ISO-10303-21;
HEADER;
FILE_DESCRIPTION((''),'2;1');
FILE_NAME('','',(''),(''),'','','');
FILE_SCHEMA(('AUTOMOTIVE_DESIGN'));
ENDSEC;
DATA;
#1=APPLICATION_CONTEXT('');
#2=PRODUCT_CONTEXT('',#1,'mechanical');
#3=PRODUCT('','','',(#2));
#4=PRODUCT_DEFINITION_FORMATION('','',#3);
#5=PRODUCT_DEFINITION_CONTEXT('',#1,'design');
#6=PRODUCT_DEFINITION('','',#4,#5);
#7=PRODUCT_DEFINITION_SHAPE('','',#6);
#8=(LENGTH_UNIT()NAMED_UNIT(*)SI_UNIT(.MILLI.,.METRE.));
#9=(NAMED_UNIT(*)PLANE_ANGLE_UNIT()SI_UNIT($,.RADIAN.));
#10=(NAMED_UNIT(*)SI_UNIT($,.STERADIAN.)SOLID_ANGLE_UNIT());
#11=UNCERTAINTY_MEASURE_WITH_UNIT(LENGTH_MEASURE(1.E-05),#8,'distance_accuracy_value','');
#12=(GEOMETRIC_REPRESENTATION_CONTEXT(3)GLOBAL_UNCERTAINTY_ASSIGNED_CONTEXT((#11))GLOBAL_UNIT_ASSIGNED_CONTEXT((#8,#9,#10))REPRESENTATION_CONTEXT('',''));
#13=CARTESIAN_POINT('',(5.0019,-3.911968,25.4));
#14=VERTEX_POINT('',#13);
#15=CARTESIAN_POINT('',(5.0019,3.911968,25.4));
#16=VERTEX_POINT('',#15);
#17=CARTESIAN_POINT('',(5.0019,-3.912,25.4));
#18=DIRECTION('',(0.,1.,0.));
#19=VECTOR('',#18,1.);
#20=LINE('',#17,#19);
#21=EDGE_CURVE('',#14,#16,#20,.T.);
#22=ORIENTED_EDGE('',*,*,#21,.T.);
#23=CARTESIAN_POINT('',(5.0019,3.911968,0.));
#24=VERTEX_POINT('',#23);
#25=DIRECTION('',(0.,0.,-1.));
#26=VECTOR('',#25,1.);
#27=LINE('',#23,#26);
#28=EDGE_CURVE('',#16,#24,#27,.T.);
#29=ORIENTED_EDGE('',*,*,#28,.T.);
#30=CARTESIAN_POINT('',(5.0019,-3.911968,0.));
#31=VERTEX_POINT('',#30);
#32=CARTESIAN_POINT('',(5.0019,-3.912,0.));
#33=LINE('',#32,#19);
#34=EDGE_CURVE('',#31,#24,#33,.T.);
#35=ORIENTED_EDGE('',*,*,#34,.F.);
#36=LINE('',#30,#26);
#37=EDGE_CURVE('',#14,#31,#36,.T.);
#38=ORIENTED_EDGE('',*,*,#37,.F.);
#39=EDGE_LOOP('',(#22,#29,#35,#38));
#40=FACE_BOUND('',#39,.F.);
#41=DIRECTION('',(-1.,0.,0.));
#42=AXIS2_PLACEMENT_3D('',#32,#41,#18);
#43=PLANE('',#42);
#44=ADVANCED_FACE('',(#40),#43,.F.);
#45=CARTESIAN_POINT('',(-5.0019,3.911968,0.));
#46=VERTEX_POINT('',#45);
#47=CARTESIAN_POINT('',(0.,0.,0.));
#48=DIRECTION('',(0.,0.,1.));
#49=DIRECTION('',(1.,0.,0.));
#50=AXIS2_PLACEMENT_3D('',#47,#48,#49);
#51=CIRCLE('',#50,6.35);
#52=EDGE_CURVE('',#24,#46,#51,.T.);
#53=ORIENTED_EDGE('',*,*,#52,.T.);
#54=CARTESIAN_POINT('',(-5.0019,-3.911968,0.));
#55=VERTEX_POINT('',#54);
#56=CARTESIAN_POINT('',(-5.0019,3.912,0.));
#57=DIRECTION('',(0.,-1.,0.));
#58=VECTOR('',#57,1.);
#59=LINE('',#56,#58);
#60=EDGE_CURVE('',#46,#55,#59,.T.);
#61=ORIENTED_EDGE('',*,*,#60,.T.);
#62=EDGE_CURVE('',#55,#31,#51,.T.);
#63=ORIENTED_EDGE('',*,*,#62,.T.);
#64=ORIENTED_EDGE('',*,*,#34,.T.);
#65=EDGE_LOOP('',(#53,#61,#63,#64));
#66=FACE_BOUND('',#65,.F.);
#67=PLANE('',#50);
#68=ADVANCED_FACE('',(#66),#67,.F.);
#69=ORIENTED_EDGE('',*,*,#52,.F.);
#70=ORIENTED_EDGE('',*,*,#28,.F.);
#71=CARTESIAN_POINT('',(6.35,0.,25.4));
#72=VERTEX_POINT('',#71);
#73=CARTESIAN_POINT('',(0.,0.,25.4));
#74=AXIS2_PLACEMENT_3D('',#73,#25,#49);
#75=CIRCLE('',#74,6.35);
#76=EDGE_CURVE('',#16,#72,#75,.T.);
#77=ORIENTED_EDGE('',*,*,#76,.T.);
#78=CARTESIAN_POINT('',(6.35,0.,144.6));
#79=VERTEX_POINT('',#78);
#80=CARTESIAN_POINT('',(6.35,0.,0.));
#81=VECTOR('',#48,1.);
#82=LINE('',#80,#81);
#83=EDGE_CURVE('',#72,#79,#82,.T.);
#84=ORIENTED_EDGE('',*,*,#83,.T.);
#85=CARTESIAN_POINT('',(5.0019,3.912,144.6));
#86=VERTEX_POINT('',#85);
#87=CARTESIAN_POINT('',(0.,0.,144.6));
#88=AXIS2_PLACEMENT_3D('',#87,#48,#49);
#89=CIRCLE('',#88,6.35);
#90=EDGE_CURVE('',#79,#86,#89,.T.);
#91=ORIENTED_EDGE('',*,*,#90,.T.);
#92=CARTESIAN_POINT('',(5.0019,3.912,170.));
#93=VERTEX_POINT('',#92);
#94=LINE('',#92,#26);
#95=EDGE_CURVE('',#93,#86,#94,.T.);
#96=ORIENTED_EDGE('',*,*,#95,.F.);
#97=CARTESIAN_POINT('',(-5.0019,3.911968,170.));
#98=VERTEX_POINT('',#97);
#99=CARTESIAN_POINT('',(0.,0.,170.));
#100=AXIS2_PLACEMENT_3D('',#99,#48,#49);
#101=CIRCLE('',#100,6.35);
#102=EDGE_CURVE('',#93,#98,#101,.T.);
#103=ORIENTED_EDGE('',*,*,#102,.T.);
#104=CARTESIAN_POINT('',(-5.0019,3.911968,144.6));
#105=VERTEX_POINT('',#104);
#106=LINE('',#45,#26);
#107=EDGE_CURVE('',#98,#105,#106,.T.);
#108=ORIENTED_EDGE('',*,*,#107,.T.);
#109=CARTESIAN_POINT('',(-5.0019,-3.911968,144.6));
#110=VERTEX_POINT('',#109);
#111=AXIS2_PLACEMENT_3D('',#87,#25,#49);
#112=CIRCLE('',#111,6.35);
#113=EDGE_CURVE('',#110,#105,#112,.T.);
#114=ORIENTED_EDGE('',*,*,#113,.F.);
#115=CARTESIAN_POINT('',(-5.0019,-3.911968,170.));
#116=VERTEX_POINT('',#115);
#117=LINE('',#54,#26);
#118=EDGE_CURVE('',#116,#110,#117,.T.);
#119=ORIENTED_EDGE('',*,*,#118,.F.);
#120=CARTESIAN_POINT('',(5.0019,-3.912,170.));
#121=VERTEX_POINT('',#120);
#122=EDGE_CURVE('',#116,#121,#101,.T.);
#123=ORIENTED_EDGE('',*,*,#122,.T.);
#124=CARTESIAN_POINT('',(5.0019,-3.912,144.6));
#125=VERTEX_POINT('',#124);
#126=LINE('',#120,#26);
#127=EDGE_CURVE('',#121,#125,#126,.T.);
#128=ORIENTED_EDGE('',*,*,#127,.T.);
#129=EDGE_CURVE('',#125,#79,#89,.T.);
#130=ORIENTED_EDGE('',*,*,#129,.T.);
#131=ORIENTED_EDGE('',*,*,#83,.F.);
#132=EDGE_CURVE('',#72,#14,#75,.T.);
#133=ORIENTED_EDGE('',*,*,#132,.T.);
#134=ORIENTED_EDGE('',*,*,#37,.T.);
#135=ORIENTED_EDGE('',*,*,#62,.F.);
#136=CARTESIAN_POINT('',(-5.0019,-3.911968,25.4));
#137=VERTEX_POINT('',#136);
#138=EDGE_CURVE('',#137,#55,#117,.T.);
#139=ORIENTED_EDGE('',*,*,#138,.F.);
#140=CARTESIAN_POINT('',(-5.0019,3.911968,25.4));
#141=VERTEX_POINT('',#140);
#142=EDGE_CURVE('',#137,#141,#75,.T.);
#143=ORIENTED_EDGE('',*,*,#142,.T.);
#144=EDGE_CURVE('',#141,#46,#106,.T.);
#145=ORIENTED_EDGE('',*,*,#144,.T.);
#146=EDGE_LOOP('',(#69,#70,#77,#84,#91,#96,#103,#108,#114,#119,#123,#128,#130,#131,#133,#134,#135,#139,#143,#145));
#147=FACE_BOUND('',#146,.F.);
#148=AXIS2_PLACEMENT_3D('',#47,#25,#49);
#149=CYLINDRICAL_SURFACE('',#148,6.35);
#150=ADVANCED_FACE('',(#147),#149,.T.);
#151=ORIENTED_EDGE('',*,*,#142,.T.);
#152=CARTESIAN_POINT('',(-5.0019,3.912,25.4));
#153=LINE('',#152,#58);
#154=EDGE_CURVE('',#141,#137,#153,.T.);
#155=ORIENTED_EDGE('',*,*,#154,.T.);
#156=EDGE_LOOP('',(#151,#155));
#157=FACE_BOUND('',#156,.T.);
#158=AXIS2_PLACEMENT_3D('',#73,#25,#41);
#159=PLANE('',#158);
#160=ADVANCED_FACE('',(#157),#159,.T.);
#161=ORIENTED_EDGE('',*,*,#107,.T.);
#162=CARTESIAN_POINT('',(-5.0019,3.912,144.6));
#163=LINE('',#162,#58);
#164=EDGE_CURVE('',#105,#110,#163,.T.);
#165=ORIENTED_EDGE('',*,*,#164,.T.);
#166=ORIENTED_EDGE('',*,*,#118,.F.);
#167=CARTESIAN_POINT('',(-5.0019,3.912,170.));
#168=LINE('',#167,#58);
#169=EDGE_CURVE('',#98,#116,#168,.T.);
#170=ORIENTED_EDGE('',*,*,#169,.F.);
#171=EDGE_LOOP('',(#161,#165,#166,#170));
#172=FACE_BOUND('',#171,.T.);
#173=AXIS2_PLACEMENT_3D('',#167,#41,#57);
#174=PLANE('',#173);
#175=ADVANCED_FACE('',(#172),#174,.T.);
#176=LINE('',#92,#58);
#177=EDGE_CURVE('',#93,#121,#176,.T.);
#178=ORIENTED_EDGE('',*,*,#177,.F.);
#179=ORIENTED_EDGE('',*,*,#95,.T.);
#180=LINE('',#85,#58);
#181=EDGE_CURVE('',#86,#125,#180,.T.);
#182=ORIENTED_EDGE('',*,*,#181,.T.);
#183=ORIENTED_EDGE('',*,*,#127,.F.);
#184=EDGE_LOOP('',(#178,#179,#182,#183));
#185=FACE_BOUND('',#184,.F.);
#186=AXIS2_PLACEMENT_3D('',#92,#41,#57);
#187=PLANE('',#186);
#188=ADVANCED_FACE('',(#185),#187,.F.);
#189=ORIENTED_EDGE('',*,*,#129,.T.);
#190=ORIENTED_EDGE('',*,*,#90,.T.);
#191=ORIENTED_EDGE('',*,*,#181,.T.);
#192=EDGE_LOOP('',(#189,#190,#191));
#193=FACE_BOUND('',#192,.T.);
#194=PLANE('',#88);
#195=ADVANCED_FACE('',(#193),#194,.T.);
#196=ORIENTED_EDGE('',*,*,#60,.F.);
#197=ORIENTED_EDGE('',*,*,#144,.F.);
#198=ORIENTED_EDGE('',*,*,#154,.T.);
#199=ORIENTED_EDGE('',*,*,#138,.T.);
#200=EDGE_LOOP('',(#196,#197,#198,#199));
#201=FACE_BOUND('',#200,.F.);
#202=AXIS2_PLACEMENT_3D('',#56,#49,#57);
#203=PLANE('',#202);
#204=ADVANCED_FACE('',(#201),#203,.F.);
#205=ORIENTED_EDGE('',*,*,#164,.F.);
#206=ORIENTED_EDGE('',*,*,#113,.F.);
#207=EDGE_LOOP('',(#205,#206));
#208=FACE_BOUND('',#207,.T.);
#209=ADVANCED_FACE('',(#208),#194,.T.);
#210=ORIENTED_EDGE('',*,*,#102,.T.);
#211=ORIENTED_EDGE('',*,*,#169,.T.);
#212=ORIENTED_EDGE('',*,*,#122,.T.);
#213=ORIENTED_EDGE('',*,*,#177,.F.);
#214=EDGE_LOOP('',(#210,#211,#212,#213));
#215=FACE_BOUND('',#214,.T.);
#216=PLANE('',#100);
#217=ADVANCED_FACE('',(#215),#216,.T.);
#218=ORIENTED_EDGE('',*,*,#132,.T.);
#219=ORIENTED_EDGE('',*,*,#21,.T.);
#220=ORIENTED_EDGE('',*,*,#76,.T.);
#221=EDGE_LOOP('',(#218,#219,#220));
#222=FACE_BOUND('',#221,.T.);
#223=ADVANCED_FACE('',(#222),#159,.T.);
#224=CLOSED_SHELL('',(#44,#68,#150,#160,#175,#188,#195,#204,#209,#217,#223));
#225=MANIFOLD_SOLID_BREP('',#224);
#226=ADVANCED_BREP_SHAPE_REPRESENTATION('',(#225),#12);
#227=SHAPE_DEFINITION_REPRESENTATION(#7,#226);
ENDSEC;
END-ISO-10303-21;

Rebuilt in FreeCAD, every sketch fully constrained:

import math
import FreeCAD as App
import Part
import Sketcher

V = App.Vector
Q = App.Units.Quantity

doc = App.newDocument("Part")
body = doc.addObject("PartDesign::Body", "Body")

# Sketch on XY plane
sketch1 = body.newObject("Sketcher::SketchObject", "Sketch")
sketch1.AttachmentSupport = (doc.getObject("XY_Plane"), [""])
sketch1.MapMode = "FlatFace"
sketch1.addGeometry(Part.Circle(V(0, 0, 0), V(0, 0, 1), 6.35), False)
sketch1.addConstraint(Sketcher.Constraint("Coincident", 0, 3, -1, 1))
sketch1.addConstraint(Sketcher.Constraint("Diameter", 0, Q("0.5 in")))
pad1 = body.newObject("PartDesign::Pad", "Pad")
pad1.Profile = sketch1
pad1.Length = 170

# Sketch on XY plane
sketch2 = body.newObject("Sketcher::SketchObject", "Sketch001")
sketch2.AttachmentSupport = (doc.getObject("XY_Plane"), [""])
sketch2.MapMode = "FlatFace"
sketch2.AttachmentOffset = App.Placement(V(0, 0, 170), App.Rotation())
sketch2.addGeometry(Part.ArcOfCircle(Part.Circle(V(0, 0, 0), V(0, 0, 1), 6.35), math.radians(-38.029062), math.radians(38.029062)), False)
sketch2.addGeometry(Part.LineSegment(V(5.0019, -3.912, 0), V(5.0019, 3.912, 0)), False)
sketch2.addConstraint(Sketcher.Constraint("Coincident", 0, 1, 1, 1))
sketch2.addConstraint(Sketcher.Constraint("Coincident", 1, 2, 0, 2))
sketch2.addConstraint(Sketcher.Constraint("Vertical", 1))
sketch2.addConstraint(Sketcher.Constraint("Coincident", 0, 3, -1, 1))
sketch2.addConstraint(Sketcher.Constraint("Radius", 0, Q("0.25 in")))
sketch2.addConstraint(Sketcher.Constraint("DistanceY", 1, 1, 1, 2, 7.824))
pocket1 = body.newObject("PartDesign::Pocket", "Pocket")
pocket1.Profile = sketch2
pocket1.Length = Q("1 in")

# Sketch on XY plane
sketch3 = body.newObject("Sketcher::SketchObject", "Sketch002")
sketch3.AttachmentSupport = (doc.getObject("XY_Plane"), [""])
sketch3.MapMode = "FlatFace"
sketch3.AttachmentOffset = App.Placement(V(0, 0, 170), App.Rotation())
sketch3.addGeometry(Part.LineSegment(V(-5.0019, -3.912, 0), V(-5.0019, 3.912, 0)), False)
sketch3.addGeometry(Part.ArcOfCircle(Part.Circle(V(0, 0, 0), V(0, 0, 1), 6.350019), math.radians(141.970938), math.radians(218.029062)), False)
sketch3.addConstraint(Sketcher.Constraint("Coincident", 0, 1, 1, 2))
sketch3.addConstraint(Sketcher.Constraint("Coincident", 1, 1, 0, 2))
sketch3.addConstraint(Sketcher.Constraint("Vertical", 0))
sketch3.addConstraint(Sketcher.Constraint("Coincident", 1, 3, -1, 1))
sketch3.addConstraint(Sketcher.Constraint("Radius", 1, Q("0.25 in")))
sketch3.addConstraint(Sketcher.Constraint("DistanceY", 0, 1, 0, 2, 7.824))
pocket2 = body.newObject("PartDesign::Pocket", "Pocket001")
pocket2.Profile = sketch3
pocket2.Length = Q("1 in")

# Sketch on XY plane
sketch4 = body.newObject("Sketcher::SketchObject", "Sketch003")
sketch4.AttachmentSupport = (doc.getObject("XY_Plane"), [""])
sketch4.MapMode = "FlatFace"
sketch4.addGeometry(Part.ArcOfCircle(Part.Circle(V(0, 0, 0), V(0, 0, 1), 6.350019), math.radians(-38.029062), math.radians(38.029062)), False)
sketch4.addGeometry(Part.LineSegment(V(5.0019, -3.912, 0), V(5.0019, 3.912, 0)), False)
sketch4.addConstraint(Sketcher.Constraint("Coincident", 0, 1, 1, 1))
sketch4.addConstraint(Sketcher.Constraint("Coincident", 1, 2, 0, 2))
sketch4.addConstraint(Sketcher.Constraint("Vertical", 1))
sketch4.addConstraint(Sketcher.Constraint("Coincident", 0, 3, -1, 1))
sketch4.addConstraint(Sketcher.Constraint("Radius", 0, Q("0.25 in")))
sketch4.addConstraint(Sketcher.Constraint("DistanceY", 1, 1, 1, 2, 7.824))
pocket3 = body.newObject("PartDesign::Pocket", "Pocket002")
pocket3.Profile = sketch4
pocket3.Length = Q("1 in")
pocket3.Reversed = True

# Sketch on XY plane
sketch5 = body.newObject("Sketcher::SketchObject", "Sketch004")
sketch5.AttachmentSupport = (doc.getObject("XY_Plane"), [""])
sketch5.MapMode = "FlatFace"
sketch5.addGeometry(Part.LineSegment(V(-5.0019, 3.912, 0), V(-5.0019, -3.912, 0)), False)
sketch5.addGeometry(Part.ArcOfCircle(Part.Circle(V(0, 0, 0), V(0, 0, 1), 6.350019), math.radians(141.970938), math.radians(218.029062)), False)
sketch5.addConstraint(Sketcher.Constraint("Coincident", 0, 1, 1, 1))
sketch5.addConstraint(Sketcher.Constraint("Coincident", 1, 2, 0, 2))
sketch5.addConstraint(Sketcher.Constraint("Vertical", 0))
sketch5.addConstraint(Sketcher.Constraint("Coincident", 1, 3, -1, 1))
sketch5.addConstraint(Sketcher.Constraint("Radius", 1, Q("0.25 in")))
sketch5.addConstraint(Sketcher.Constraint("DistanceY", 0, 2, 0, 1, 7.824))
pocket4 = body.newObject("PartDesign::Pocket", "Pocket003")
pocket4.Profile = sketch5
pocket4.Length = Q("1 in")
pocket4.Reversed = True

doc.recompute()
